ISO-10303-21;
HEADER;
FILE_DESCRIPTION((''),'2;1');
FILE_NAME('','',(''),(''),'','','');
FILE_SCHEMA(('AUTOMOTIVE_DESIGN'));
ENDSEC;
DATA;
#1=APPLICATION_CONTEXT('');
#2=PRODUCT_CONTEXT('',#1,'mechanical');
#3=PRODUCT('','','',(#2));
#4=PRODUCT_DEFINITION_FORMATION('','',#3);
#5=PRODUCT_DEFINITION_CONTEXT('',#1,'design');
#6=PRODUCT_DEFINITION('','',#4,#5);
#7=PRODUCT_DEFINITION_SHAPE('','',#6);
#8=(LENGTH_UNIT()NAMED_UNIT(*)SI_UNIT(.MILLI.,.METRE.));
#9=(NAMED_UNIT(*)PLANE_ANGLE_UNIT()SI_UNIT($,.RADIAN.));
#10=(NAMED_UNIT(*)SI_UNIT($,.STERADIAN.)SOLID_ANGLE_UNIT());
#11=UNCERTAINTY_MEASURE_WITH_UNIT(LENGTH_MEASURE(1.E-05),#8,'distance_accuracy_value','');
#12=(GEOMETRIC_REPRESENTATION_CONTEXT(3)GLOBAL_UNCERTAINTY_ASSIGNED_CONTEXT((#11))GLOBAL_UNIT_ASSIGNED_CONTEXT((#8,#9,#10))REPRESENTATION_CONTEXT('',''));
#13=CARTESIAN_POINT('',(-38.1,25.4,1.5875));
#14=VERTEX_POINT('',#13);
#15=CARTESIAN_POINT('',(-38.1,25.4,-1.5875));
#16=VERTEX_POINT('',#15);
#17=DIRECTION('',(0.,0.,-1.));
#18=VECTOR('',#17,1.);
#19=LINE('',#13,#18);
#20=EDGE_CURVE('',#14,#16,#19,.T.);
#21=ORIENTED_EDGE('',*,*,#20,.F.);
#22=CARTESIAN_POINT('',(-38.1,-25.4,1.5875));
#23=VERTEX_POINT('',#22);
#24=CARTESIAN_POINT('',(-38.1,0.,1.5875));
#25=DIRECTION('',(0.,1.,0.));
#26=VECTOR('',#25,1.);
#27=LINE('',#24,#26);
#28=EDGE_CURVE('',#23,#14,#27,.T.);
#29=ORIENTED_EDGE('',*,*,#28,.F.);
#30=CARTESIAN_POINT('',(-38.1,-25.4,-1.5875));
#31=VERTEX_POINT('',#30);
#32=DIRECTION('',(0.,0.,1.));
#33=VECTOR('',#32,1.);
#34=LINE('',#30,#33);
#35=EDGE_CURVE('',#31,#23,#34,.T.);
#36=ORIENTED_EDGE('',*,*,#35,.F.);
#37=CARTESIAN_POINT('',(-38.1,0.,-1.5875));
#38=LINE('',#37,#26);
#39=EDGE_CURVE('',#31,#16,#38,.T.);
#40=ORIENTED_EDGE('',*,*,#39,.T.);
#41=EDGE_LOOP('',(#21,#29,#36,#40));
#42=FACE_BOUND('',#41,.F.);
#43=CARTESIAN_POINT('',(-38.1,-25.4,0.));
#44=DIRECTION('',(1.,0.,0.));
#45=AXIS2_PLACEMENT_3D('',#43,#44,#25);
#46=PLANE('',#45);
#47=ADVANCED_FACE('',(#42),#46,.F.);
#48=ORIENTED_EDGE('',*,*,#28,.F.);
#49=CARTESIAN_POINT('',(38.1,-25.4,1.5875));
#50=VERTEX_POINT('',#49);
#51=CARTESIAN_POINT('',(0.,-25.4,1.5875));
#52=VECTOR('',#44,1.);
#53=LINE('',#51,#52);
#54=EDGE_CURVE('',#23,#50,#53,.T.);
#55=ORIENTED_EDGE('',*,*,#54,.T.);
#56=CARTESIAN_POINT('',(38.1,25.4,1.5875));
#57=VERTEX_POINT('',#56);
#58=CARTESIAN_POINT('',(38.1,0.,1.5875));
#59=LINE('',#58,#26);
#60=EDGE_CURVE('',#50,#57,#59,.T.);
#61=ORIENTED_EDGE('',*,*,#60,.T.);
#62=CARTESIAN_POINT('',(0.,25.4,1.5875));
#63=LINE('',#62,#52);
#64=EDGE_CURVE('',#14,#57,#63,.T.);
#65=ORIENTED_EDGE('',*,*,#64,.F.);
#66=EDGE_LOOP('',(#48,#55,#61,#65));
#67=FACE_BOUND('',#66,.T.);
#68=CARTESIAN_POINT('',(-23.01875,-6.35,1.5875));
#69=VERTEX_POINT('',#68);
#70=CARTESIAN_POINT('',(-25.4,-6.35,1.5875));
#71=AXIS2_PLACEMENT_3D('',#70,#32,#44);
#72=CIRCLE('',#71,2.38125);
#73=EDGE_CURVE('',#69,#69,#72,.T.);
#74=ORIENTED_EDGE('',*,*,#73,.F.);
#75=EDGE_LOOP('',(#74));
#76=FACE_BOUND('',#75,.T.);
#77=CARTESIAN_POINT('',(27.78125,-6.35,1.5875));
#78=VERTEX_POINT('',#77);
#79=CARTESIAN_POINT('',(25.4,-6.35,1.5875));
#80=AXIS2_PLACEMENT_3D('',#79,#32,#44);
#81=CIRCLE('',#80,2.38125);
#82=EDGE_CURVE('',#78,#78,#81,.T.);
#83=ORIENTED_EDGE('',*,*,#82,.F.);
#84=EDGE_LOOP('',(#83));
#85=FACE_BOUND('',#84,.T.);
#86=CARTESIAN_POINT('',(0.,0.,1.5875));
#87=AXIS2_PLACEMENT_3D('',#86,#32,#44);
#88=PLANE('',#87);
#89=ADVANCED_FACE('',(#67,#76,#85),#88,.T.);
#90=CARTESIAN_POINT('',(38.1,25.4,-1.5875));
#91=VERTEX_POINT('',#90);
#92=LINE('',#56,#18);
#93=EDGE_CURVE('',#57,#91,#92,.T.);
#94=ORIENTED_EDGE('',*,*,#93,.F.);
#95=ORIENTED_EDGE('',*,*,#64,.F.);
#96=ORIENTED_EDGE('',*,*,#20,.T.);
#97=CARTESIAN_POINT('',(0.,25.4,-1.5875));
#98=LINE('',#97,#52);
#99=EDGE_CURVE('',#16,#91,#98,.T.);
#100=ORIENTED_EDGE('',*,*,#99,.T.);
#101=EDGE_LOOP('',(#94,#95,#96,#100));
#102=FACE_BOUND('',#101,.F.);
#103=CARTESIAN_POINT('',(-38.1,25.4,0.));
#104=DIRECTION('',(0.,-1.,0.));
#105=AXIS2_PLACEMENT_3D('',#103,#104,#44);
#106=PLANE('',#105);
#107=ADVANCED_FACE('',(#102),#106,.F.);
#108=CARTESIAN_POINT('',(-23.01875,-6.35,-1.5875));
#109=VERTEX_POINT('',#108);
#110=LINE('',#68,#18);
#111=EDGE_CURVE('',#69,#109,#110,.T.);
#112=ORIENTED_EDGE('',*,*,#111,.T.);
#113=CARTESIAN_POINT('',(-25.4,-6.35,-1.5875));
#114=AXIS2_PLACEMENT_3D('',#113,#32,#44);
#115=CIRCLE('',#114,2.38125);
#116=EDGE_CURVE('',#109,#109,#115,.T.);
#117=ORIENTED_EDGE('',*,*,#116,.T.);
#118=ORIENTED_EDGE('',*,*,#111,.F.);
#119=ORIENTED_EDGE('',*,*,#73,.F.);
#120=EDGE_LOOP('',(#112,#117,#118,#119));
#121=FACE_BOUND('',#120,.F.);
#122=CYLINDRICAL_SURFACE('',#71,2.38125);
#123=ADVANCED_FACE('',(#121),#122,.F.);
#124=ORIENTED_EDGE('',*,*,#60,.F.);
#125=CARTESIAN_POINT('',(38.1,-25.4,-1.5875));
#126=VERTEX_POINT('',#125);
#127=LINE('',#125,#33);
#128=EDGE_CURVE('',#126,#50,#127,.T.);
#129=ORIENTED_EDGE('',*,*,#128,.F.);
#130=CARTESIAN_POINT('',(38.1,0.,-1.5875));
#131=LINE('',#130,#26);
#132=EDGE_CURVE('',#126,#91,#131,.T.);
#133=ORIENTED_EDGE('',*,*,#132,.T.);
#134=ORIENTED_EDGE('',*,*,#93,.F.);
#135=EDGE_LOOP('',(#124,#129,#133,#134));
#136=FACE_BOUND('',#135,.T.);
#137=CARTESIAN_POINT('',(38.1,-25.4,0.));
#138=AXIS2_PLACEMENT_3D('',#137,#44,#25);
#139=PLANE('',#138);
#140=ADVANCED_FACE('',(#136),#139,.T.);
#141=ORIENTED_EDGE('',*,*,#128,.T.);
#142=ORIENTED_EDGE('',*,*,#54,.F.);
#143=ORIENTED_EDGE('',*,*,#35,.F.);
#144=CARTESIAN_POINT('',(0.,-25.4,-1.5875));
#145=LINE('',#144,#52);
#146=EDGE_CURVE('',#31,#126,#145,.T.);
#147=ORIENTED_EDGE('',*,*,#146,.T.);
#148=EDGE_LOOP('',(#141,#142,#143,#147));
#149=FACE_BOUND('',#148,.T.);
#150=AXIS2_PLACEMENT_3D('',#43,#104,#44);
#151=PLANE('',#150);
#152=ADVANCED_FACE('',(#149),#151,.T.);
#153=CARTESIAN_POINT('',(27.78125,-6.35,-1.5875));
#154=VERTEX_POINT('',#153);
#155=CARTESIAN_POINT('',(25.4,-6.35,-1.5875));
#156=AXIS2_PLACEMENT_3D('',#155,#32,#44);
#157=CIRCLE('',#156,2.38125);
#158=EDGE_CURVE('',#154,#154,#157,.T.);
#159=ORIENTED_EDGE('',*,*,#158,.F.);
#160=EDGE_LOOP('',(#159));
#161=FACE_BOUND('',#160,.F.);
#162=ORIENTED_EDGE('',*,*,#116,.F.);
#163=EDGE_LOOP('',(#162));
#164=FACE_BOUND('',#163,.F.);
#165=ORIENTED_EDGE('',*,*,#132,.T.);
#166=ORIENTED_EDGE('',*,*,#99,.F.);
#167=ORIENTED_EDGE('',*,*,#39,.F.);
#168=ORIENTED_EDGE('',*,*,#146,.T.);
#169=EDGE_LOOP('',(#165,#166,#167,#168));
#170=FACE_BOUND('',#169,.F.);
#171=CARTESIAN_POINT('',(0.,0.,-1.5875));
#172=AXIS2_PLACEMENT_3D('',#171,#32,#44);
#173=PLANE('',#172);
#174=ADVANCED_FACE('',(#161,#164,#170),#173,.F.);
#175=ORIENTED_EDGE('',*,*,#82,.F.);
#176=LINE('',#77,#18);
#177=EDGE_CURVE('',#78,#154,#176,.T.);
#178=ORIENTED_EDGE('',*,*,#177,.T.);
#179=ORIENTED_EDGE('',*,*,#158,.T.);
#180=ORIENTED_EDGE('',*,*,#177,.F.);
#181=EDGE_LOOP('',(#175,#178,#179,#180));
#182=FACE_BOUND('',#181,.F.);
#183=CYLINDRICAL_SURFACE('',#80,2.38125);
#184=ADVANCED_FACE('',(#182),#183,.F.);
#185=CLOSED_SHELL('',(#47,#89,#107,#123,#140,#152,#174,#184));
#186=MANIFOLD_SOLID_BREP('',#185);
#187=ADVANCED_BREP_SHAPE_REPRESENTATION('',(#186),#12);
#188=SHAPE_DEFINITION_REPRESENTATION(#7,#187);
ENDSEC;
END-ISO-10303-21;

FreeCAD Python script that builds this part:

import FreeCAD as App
import Part
import Sketcher
Q = App.Units.Quantity

doc = App.newDocument("Part")
body = doc.addObject("PartDesign::Body", "Body")

# Sketch on XY plane
sketch1 = body.newObject("Sketcher::SketchObject", "Sketch")
sketch1.AttachmentSupport = (doc.getObject("XY_Plane"), [""])
sketch1.MapMode = "FlatFace"
sketch1.addGeometry([
    Part.LineSegment(App.Vector(-38.1, 25.4, 0), App.Vector(-38.1, -25.4, 0)),
    Part.LineSegment(App.Vector(-38.1, -25.4, 0), App.Vector(38.1, -25.4, 0)),
    Part.LineSegment(App.Vector(38.1, -25.4, 0), App.Vector(38.1, 25.4, 0)),
    Part.LineSegment(App.Vector(38.1, 25.4, 0), App.Vector(-38.1, 25.4, 0)),
], False)
sketch1.addConstraint([
    Sketcher.Constraint("Coincident", 0, 2, 1, 1),
    Sketcher.Constraint("Coincident", 1, 2, 2, 1),
    Sketcher.Constraint("Coincident", 2, 2, 3, 1),
    Sketcher.Constraint("Coincident", 3, 2, 0, 1),
    Sketcher.Constraint("Vertical", 0),
    Sketcher.Constraint("Horizontal", 1),
    Sketcher.Constraint("Vertical", 2),
    Sketcher.Constraint("Horizontal", 3),
    Sketcher.Constraint("Symmetric", 0, 2, 2, 2, -1, 1),
    Sketcher.Constraint("DistanceX", 1, 1, 1, 2, Q("3 in")),
    Sketcher.Constraint("DistanceY", 0, 2, 0, 1, Q("2 in")),
])
pad1 = body.newObject("PartDesign::Pad", "Pad")
pad1.Profile = sketch1
pad1.Length = Q("0.125 in")
pad1.Midplane = True

# Sketch on XY plane
sketch2 = body.newObject("Sketcher::SketchObject", "Sketch001")
sketch2.AttachmentSupport = (doc.getObject("XY_Plane"), [""])
sketch2.MapMode = "FlatFace"
sketch2.AttachmentOffset = App.Placement(App.Vector(0, 0, 0.0625 * 25.4), App.Rotation())
sketch2.addGeometry([
    Part.Circle(App.Vector(-25.4, -6.35, 0), App.Vector(0, 0, 1), 2.38125),
    Part.Circle(App.Vector(25.4, -6.35, 0), App.Vector(0, 0, 1), 2.38125),
], False)
sketch2.addConstraint([
    Sketcher.Constraint("Equal", 0, 1),
    Sketcher.Constraint("Symmetric", 0, 3, 1, 3, -2),
    Sketcher.Constraint("Diameter", 0, Q("0.1875 in")),
    Sketcher.Constraint("DistanceX", 0, 3, -1, 1, Q("1 in")),
    Sketcher.Constraint("DistanceY", 0, 3, -1, 1, Q("0.25 in")),
])
pocket1 = body.newObject("PartDesign::Pocket", "Pocket")
pocket1.Profile = sketch2
pocket1.Type = "ThroughAll"

doc.recompute()
